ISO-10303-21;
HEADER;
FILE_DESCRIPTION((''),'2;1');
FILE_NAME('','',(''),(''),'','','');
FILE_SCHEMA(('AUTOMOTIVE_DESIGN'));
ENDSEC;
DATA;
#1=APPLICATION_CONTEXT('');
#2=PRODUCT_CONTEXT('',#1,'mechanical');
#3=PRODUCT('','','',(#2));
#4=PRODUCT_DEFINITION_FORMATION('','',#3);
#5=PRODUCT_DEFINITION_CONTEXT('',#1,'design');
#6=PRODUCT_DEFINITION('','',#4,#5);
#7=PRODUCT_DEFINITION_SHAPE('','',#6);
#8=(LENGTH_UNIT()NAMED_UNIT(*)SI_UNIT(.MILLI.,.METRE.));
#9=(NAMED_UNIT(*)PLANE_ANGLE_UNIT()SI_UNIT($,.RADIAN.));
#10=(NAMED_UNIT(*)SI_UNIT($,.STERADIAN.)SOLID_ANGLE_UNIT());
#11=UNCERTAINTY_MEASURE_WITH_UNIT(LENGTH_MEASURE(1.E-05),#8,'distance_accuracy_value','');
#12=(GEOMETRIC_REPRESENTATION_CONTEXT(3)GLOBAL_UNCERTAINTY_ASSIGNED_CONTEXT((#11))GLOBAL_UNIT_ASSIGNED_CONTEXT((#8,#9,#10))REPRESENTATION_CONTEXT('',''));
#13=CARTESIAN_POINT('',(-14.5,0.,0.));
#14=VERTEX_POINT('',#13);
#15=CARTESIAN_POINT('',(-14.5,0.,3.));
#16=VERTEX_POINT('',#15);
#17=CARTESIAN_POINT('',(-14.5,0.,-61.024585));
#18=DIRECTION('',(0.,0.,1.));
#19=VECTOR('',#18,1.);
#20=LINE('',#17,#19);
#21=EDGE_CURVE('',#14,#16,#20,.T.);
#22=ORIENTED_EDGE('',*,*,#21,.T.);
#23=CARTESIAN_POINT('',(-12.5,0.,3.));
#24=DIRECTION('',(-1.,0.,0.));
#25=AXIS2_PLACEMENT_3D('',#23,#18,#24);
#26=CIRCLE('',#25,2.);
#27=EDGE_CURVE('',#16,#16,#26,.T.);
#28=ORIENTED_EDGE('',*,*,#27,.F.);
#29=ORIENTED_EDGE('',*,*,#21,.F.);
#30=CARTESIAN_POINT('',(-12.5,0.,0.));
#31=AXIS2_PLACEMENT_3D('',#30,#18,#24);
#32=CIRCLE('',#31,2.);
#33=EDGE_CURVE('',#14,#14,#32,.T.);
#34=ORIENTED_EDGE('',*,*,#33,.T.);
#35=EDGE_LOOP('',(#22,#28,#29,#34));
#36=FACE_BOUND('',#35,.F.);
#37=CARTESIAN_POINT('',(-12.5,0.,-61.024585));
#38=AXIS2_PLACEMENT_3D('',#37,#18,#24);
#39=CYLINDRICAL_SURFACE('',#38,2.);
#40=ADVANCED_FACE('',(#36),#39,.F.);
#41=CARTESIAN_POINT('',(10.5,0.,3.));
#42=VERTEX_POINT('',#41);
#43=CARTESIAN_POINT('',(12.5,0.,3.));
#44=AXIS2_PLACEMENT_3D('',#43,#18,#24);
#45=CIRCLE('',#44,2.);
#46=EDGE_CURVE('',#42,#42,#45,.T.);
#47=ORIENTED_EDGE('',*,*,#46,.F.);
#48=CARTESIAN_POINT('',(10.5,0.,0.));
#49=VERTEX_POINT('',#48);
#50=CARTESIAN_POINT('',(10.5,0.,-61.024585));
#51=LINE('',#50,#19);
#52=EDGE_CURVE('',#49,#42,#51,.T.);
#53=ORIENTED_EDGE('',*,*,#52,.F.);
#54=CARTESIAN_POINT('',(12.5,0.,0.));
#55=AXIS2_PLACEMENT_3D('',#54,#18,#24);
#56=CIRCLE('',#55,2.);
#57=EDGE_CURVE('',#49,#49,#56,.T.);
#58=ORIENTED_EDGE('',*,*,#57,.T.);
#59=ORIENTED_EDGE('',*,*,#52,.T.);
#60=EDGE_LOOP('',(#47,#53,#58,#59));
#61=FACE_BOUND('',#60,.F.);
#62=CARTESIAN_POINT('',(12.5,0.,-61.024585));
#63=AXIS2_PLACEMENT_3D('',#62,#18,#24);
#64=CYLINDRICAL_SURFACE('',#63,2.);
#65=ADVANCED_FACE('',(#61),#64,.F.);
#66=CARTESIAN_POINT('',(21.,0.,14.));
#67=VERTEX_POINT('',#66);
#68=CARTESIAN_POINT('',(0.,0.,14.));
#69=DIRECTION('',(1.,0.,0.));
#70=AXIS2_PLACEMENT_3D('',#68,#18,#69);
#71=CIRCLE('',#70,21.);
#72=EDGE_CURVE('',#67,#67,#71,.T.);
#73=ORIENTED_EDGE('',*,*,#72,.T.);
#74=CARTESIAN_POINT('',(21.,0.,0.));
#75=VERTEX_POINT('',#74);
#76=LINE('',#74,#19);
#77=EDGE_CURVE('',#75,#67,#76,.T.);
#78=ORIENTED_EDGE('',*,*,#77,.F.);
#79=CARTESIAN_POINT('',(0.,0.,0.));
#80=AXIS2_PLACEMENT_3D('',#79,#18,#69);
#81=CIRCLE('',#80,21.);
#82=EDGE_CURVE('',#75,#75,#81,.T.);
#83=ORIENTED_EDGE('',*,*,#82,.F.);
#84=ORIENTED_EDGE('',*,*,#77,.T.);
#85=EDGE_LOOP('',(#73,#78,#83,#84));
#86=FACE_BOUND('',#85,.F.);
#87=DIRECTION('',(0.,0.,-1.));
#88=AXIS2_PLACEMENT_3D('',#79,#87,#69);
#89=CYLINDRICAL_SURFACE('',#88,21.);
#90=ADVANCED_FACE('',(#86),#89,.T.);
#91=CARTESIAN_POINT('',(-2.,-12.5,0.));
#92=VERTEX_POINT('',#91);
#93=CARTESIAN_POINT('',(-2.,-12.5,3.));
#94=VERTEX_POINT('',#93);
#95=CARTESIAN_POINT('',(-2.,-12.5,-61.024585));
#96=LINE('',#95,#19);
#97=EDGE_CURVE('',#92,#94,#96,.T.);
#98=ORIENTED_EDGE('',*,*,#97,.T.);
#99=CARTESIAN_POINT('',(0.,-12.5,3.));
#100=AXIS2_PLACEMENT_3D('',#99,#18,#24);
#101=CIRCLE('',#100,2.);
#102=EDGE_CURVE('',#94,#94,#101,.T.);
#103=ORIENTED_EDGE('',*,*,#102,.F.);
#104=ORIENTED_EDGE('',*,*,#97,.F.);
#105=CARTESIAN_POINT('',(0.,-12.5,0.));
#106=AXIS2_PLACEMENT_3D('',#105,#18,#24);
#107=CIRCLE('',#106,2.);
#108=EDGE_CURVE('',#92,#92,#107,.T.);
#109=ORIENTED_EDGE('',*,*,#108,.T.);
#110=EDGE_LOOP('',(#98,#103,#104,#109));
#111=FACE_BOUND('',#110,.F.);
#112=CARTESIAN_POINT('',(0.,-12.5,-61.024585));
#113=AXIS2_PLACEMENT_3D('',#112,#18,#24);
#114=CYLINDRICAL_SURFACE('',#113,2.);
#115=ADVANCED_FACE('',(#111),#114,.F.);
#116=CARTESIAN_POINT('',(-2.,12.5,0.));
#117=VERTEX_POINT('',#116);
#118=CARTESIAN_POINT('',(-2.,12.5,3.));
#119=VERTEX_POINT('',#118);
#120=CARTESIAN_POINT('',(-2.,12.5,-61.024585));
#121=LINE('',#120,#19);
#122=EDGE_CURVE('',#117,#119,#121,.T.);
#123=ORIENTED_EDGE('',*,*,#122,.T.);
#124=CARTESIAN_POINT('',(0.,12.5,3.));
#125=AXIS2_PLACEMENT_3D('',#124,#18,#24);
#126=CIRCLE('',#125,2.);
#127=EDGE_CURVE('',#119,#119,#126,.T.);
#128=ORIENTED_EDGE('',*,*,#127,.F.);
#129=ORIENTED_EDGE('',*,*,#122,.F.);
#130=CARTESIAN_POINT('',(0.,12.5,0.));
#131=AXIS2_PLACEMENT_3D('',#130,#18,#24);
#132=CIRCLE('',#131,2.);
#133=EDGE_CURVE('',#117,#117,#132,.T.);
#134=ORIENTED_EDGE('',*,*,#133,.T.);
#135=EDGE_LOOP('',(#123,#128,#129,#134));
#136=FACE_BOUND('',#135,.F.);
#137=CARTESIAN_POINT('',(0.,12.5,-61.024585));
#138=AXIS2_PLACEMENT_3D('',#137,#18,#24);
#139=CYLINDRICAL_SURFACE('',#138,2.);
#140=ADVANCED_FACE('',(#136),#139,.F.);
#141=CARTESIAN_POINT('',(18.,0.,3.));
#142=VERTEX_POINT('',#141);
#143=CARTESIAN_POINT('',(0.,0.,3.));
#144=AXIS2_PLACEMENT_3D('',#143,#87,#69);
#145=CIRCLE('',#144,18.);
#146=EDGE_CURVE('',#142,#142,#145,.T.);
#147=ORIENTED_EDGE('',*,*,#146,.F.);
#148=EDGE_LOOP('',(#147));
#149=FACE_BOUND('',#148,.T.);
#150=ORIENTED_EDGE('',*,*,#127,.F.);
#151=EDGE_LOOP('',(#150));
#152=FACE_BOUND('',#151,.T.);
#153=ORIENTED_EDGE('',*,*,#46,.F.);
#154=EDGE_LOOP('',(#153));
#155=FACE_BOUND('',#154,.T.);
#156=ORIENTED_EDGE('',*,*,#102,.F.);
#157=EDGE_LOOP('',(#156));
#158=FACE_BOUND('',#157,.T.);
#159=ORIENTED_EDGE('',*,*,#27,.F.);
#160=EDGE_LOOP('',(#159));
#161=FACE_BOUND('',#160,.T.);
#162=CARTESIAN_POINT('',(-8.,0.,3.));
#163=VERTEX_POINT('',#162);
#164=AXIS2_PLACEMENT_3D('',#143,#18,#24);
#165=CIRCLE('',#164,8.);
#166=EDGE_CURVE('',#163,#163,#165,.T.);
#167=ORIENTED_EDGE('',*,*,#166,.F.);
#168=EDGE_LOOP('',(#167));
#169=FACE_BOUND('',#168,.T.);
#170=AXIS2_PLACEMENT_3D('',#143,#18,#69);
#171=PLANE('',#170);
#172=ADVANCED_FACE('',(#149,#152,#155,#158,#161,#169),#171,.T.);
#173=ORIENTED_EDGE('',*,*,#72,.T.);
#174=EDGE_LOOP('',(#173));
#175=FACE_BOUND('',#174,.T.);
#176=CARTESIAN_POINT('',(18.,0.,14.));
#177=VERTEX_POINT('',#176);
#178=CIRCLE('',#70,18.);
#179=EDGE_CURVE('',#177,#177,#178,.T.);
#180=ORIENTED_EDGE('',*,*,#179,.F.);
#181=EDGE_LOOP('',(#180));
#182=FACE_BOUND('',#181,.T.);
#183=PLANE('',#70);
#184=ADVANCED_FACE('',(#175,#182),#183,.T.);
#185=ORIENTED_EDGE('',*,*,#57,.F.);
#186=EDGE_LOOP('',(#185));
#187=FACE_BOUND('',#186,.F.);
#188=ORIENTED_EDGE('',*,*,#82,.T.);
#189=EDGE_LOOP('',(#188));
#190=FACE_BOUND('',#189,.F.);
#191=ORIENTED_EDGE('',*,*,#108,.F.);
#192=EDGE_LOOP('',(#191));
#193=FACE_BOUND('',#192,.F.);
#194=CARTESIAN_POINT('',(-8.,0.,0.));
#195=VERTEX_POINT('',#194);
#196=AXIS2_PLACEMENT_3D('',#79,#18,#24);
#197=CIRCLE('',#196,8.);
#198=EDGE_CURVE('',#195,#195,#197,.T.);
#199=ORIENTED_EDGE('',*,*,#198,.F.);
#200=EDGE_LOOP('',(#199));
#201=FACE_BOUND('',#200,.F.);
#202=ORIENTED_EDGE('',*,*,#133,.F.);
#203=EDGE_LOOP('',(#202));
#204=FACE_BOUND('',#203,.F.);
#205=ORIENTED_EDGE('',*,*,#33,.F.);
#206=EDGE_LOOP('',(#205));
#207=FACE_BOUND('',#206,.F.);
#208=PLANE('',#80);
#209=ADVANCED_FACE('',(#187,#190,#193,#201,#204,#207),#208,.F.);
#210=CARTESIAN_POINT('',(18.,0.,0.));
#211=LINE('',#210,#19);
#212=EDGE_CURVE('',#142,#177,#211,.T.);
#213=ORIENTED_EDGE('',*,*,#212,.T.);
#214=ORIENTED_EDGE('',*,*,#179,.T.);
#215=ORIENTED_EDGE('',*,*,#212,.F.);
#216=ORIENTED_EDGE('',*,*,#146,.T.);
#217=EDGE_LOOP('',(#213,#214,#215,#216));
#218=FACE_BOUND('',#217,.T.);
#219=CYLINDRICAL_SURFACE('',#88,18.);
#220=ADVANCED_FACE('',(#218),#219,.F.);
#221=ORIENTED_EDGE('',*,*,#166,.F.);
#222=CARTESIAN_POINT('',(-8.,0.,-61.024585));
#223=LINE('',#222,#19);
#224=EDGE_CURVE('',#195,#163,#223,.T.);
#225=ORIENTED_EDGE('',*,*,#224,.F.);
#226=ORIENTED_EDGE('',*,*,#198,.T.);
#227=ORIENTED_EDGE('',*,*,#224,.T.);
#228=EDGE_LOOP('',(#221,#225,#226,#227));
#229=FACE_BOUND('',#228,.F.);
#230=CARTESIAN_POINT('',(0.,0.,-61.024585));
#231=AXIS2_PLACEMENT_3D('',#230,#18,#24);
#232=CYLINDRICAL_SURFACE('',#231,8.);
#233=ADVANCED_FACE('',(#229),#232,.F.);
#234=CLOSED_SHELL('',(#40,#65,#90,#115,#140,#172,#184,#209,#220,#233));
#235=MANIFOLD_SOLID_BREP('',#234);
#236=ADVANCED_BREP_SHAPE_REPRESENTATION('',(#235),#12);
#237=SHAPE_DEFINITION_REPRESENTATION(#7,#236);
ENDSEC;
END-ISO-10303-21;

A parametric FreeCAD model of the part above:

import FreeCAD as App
import Part
import Sketcher


def faces_at(feature, points):
    """Names of the faces that lie closest to the given points."""
    faces = feature.Shape.Faces
    near = lambda p: min(range(len(faces)), key=lambda i: faces[i].distToShape(Part.Vertex(*p))[0])
    return sorted({f"Face{near(p) + 1}" for p in points})

doc = App.newDocument("Part")
body = doc.addObject("PartDesign::Body", "Body")

sketch1 = doc.addObject("Sketcher::SketchObject", "Sketch")
body.addObject(sketch1)
sketch1.AttachmentSupport = (doc.XY_Plane, [""])
sketch1.MapMode = "FlatFace"
sketch1.addGeometry(Part.Circle(App.Vector(0, 0, 0), App.Vector(0, 0, 1), 21), False)
sketch1.addConstraint([
    Sketcher.Constraint("Coincident", 0, 3, -1, 1),
    Sketcher.Constraint("Diameter", 0, 42.0),
])
pad1 = doc.addObject("PartDesign::Pad", "Pad")
body.addObject(pad1)
pad1.Profile = sketch1
pad1.Length = 14
doc.recompute()

thickness = doc.addObject("PartDesign::Thickness", "Thickness")
body.addObject(thickness)
thickness.Base = (pad1, faces_at(pad1, [(0, 0, 14)]))
thickness.Value = 3
thickness.Reversed = True
thickness.Join = "Arc"

sketch2 = doc.addObject("Sketcher::SketchObject", "Sketch001")
body.addObject(sketch2)
sketch2.AttachmentSupport = (doc.XY_Plane, [""])
sketch2.MapMode = "FlatFace"
sketch2.addGeometry([
    Part.Circle(App.Vector(-12.5, 0, 0), App.Vector(0, 0, 1), 2),
    Part.Circle(App.Vector(0, -12.5, 0), App.Vector(0, 0, 1), 2),
    Part.Circle(App.Vector(12.5, 0, 0), App.Vector(0, 0, 1), 2),
    Part.Circle(App.Vector(0, 12.5, 0), App.Vector(0, 0, 1), 2),
], False)
sketch2.addConstraint([
    Sketcher.Constraint("Equal", 0, 1),
    Sketcher.Constraint("Equal", 1, 2),
    Sketcher.Constraint("Equal", 2, 3),
    Sketcher.Constraint("Symmetric", 0, 3, 2, 3, -1, 1),
    Sketcher.Constraint("Symmetric", 1, 3, 3, 3, -1, 1),
    Sketcher.Constraint("PointOnObject", 0, 3, -1),
    Sketcher.Constraint("PointOnObject", 1, 3, -2),
    Sketcher.Constraint("Diameter", 0, 4.0),
    Sketcher.Constraint("DistanceX", 0, 3, 2, 3, 25.0),
    Sketcher.Constraint("DistanceY", 1, 3, 3, 3, 25.0),
])
doc.recompute()
hole = doc.addObject("PartDesign::Hole", "Hole")
body.addObject(hole)
hole.Profile = sketch2
hole.ThreadType = "None"
hole.Diameter = 4
hole.DepthType = "ThroughAll"
hole.Reversed = True

sketch3 = doc.addObject("Sketcher::SketchObject", "Sketch002")
body.addObject(sketch3)
sketch3.AttachmentSupport = (doc.XY_Plane, [""])
sketch3.MapMode = "FlatFace"
sketch3.addGeometry(Part.Circle(App.Vector(0, 0, 0), App.Vector(0, 0, 1), 8), False)
sketch3.addConstraint([
    Sketcher.Constraint("Coincident", 0, 3, -1, 1),
    Sketcher.Constraint("Diameter", 0, 16.0),
])
doc.recompute()
hole2 = doc.addObject("PartDesign::Hole", "Hole001")
body.addObject(hole2)
hole2.Profile = sketch3
hole2.ThreadType = "None"
hole2.Diameter = 16
hole2.DepthType = "ThroughAll"
hole2.Reversed = True

doc.recompute()
